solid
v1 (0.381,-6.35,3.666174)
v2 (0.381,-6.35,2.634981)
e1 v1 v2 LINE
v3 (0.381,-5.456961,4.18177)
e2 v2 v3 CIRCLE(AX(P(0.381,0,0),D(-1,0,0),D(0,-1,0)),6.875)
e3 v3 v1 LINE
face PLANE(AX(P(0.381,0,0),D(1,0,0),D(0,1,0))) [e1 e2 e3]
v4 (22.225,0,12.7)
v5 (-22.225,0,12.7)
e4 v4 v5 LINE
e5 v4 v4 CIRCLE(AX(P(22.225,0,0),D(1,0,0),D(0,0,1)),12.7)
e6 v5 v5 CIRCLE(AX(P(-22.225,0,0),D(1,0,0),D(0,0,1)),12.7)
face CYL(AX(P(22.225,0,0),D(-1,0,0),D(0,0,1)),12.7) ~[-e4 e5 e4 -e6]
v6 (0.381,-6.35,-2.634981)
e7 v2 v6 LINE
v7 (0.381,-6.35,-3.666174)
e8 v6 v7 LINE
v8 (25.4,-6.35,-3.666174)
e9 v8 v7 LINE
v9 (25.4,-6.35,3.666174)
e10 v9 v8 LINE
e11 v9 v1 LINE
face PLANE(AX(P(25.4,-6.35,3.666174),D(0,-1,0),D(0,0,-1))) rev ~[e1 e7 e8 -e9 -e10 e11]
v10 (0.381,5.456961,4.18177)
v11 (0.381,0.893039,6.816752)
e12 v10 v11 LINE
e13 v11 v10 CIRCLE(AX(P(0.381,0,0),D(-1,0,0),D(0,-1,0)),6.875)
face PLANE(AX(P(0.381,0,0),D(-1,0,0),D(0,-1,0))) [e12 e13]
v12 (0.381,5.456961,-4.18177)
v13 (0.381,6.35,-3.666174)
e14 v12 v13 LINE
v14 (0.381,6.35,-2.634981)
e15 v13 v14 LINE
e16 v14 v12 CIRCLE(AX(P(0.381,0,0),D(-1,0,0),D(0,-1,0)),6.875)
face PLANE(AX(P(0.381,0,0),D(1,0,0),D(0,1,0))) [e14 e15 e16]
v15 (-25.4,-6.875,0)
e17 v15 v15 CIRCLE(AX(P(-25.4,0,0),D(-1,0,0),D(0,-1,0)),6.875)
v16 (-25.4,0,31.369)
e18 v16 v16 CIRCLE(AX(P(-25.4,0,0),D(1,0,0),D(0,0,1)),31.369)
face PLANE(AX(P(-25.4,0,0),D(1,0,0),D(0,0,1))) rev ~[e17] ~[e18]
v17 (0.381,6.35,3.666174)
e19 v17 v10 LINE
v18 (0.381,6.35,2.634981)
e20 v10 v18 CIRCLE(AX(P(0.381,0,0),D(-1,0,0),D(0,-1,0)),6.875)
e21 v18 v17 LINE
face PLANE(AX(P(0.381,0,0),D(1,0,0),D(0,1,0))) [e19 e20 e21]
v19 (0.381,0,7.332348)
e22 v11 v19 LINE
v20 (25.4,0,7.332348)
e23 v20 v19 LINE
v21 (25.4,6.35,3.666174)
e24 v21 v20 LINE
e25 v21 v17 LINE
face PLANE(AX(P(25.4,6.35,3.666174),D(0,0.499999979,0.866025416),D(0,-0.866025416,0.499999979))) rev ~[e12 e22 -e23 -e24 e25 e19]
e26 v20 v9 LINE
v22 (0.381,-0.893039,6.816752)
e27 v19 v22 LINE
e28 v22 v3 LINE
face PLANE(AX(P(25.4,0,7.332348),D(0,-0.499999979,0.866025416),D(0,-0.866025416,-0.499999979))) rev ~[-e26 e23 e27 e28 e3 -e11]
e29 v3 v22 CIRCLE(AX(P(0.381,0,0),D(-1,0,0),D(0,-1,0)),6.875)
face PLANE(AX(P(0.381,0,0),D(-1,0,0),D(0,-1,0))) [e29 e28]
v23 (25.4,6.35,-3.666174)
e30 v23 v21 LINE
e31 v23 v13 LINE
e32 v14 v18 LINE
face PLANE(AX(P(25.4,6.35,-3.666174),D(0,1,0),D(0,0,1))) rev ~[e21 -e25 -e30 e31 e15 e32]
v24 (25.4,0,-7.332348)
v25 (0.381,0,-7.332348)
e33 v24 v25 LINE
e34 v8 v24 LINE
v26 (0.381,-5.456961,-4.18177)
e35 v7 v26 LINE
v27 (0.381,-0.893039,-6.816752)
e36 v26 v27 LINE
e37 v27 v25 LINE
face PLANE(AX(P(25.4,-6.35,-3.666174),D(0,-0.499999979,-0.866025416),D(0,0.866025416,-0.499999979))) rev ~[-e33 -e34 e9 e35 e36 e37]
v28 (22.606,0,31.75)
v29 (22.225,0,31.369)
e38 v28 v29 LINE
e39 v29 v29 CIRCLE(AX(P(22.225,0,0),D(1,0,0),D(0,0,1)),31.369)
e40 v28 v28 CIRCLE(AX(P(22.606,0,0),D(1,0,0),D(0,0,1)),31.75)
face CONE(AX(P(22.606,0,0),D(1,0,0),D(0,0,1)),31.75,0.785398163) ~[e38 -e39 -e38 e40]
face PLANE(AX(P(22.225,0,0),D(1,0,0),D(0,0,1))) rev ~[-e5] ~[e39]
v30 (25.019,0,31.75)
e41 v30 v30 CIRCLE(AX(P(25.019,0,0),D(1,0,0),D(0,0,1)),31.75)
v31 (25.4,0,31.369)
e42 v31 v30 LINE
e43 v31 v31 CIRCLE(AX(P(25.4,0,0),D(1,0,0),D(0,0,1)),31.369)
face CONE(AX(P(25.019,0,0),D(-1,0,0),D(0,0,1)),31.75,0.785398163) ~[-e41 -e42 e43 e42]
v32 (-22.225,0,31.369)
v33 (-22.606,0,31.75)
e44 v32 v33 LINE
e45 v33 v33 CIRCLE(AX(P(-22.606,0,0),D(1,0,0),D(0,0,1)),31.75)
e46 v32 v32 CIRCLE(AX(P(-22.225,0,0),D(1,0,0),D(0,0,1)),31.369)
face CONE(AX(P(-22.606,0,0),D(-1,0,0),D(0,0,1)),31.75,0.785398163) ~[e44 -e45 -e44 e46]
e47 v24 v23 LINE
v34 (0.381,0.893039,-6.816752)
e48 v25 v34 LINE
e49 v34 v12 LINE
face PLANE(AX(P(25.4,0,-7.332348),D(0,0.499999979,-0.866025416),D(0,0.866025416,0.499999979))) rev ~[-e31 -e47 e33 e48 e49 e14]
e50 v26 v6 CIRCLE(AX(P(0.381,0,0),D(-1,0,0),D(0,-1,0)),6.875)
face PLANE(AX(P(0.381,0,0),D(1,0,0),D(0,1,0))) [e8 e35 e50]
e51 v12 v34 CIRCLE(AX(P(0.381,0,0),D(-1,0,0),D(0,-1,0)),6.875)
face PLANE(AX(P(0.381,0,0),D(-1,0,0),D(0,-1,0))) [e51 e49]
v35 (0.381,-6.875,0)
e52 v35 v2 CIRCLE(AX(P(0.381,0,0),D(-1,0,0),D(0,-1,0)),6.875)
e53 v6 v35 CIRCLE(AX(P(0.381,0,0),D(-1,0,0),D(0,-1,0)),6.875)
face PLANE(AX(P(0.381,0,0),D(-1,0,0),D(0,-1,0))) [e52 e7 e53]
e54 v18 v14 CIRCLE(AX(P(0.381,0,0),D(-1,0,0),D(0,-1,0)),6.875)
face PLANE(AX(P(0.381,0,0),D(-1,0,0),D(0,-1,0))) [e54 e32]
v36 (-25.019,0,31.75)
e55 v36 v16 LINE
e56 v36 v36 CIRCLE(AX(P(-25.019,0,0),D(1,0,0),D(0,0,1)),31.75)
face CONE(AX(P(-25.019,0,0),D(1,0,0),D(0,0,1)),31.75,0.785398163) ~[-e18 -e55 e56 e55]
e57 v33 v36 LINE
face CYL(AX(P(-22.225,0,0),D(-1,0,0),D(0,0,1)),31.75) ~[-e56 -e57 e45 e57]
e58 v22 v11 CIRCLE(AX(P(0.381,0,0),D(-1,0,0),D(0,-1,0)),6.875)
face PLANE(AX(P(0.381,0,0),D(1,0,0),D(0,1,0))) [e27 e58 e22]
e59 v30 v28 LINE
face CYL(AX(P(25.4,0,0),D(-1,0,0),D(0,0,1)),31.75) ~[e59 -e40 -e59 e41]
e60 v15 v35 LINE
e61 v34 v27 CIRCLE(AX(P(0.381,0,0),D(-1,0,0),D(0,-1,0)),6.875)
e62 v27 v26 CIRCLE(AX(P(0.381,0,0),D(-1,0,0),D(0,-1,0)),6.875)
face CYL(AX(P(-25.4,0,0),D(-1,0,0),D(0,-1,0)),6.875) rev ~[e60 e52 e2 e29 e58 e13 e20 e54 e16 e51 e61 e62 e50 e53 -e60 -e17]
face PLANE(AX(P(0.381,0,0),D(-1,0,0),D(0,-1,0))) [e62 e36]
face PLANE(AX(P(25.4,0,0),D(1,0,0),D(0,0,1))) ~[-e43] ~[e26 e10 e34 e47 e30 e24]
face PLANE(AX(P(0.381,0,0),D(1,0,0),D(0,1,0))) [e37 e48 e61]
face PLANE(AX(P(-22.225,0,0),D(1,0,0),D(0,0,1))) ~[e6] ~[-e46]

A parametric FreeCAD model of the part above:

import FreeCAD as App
import Part
import Sketcher

V = App.Vector
Q = App.Units.Quantity


def edges_at(feature, points):
    """Names of the edges that pass closest to the given points."""
    edges = feature.Shape.Edges
    near = lambda p: min(range(len(edges)), key=lambda i: edges[i].distToShape(Part.Vertex(*p))[0])
    return sorted({f"Edge{near(p) + 1}" for p in points})

doc = App.newDocument("Part")
body = doc.addObject("PartDesign::Body", "Body")

# Sketch on XZ plane
sketch1 = body.newObject("Sketcher::SketchObject", "Sketch")
sketch1.AttachmentSupport = (doc.getObject("XZ_Plane"), [""])
sketch1.MapMode = "FlatFace"
sketch1.addGeometry([
    Part.LineSegment(V(22.225, 12.7, 0), V(-22.225, 12.7, 0)),  # 0
    Part.LineSegment(V(-22.225, 12.7, 0), V(-22.225, 31.75, 0)),  # 1
    Part.LineSegment(V(-22.225, 31.75, 0), V(-25.4, 31.75, 0)),  # 2
    Part.LineSegment(V(-25.4, 31.75, 0), V(-25.4, 0, 0)),  # 3
    Part.LineSegment(V(-25.4, 0, 0), V(25.4, 0, 0)),  # 4
    Part.LineSegment(V(25.4, 0, 0), V(25.4, 31.75, 0)),  # 5
    Part.LineSegment(V(25.4, 31.75, 0), V(22.225, 31.75, 0)),  # 6
    Part.LineSegment(V(22.225, 31.75, 0), V(22.225, 12.7, 0)),  # 7
], False)
sketch1.addConstraint([
    Sketcher.Constraint("Coincident", 0, 2, 1, 1),
    Sketcher.Constraint("Coincident", 1, 2, 2, 1),
    Sketcher.Constraint("Coincident", 2, 2, 3, 1),
    Sketcher.Constraint("Coincident", 3, 2, 4, 1),
    Sketcher.Constraint("Coincident", 4, 2, 5, 1),
    Sketcher.Constraint("Coincident", 5, 2, 6, 1),
    Sketcher.Constraint("Coincident", 6, 2, 7, 1),
    Sketcher.Constraint("Coincident", 7, 2, 0, 1),
    Sketcher.Constraint("Horizontal", 0),
    Sketcher.Constraint("Vertical", 1),
    Sketcher.Constraint("Horizontal", 2),
    Sketcher.Constraint("Vertical", 3),
    Sketcher.Constraint("Horizontal", 4),
    Sketcher.Constraint("Vertical", 5),
    Sketcher.Constraint("Horizontal", 6),
    Sketcher.Constraint("Vertical", 7),
    Sketcher.Constraint("Symmetric", 3, 2, 4, 2, -1, 1),
    Sketcher.Constraint("Symmetric", 1, 2, 6, 2, -2),
    Sketcher.Constraint("DistanceX", 4, 1, 4, 2, Q("2 in")),
    Sketcher.Constraint("DistanceX", 0, 2, 0, 1, Q("1.75 in")),
    Sketcher.Constraint("DistanceY", 1, 1, 1, 2, Q("0.75 in")),
    Sketcher.Constraint("DistanceY", 3, 2, 3, 1, Q("1.25 in")),
])
revolution = body.newObject("PartDesign::Revolution", "Revolution")
revolution.Profile = sketch1
revolution.ReferenceAxis = (sketch1, ["H_Axis"])
revolution.Angle = 360
doc.recompute()

chamfer = body.newObject("PartDesign::Chamfer", "Chamfer")
chamfer.Base = (revolution, edges_at(revolution, [
    (-22.225, 0, -31.75),
    (-25.4, 0, -31.75),
    (22.225, 0, -31.75),
    (25.4, 0, -31.75),
]))
chamfer.Size = Q("0.015 in")

# Sketch on YZ plane
sketch2 = body.newObject("Sketcher::SketchObject", "Sketch001")
sketch2.AttachmentSupport = (doc.getObject("YZ_Plane"), [""])
sketch2.MapMode = "FlatFace"
sketch2.AttachmentOffset = App.Placement(V(0, 0, 1 * 25.4), App.Rotation())
sketch2.addGeometry([
    Part.LineSegment(V(6.35, -3.666174, 0), V(6.35, 3.666174, 0)),  # 0
    Part.LineSegment(V(6.35, 3.666174, 0), V(0, 7.332348, 0)),  # 1
    Part.LineSegment(V(0, 7.332348, 0), V(-6.35, 3.666174, 0)),  # 2
    Part.LineSegment(V(-6.35, 3.666174, 0), V(-6.35, -3.666174, 0)),  # 3
    Part.LineSegment(V(-6.35, -3.666174, 0), V(0, -7.332348, 0)),  # 4
    Part.LineSegment(V(0, -7.332348, 0), V(6.35, -3.666174, 0)),  # 5
], False)
sketch2.addConstraint([
    Sketcher.Constraint("Coincident", 0, 2, 1, 1),
    Sketcher.Constraint("Coincident", 1, 2, 2, 1),
    Sketcher.Constraint("Coincident", 2, 2, 3, 1),
    Sketcher.Constraint("Coincident", 3, 2, 4, 1),
    Sketcher.Constraint("Coincident", 4, 2, 5, 1),
    Sketcher.Constraint("Coincident", 5, 2, 0, 1),
    Sketcher.Constraint("Vertical", 0),
    Sketcher.Constraint("Vertical", 3),
    Sketcher.Constraint("Symmetric", 0, 2, 3, 2, -1, 1),
    Sketcher.Constraint("Symmetric", 1, 2, 4, 2, -1, 1),
    Sketcher.Constraint("PointOnObject", 1, 2, -2),
    Sketcher.Constraint("Parallel", 2, 5),
    Sketcher.Constraint("Horizontal", 0, 2, 2, 2),
    Sketcher.Constraint("Angle", 1, Q("150.000001 deg")),
    Sketcher.Constraint("DistanceX", 2, 2, 0, 2, Q("0.5 in")),
    Sketcher.Constraint("DistanceY", 0, 1, 0, 2, 7.332348),
])
pocket1 = body.newObject("PartDesign::Pocket", "Pocket")
pocket1.Profile = sketch2
pocket1.Length = Q("0.985 in")

# Sketch on YZ plane
sketch3 = body.newObject("Sketcher::SketchObject", "Sketch002")
sketch3.AttachmentSupport = (doc.getObject("YZ_Plane"), [""])
sketch3.MapMode = "FlatFace"
sketch3.AttachmentOffset = App.Placement(V(0, 0, -1 * 25.4), App.Rotation())
sketch3.addGeometry(Part.Circle(V(0, 0, 0), V(0, 0, 1), 6.875), False)
sketch3.addConstraint([
    Sketcher.Constraint("Coincident", 0, 3, -1, 1),
    Sketcher.Constraint("Diameter", 0, 13.75),
])
pocket2 = body.newObject("PartDesign::Pocket", "Pocket001")
pocket2.Profile = sketch3
pocket2.Length = Q("1.015 in")
pocket2.Reversed = True

doc.recompute()
